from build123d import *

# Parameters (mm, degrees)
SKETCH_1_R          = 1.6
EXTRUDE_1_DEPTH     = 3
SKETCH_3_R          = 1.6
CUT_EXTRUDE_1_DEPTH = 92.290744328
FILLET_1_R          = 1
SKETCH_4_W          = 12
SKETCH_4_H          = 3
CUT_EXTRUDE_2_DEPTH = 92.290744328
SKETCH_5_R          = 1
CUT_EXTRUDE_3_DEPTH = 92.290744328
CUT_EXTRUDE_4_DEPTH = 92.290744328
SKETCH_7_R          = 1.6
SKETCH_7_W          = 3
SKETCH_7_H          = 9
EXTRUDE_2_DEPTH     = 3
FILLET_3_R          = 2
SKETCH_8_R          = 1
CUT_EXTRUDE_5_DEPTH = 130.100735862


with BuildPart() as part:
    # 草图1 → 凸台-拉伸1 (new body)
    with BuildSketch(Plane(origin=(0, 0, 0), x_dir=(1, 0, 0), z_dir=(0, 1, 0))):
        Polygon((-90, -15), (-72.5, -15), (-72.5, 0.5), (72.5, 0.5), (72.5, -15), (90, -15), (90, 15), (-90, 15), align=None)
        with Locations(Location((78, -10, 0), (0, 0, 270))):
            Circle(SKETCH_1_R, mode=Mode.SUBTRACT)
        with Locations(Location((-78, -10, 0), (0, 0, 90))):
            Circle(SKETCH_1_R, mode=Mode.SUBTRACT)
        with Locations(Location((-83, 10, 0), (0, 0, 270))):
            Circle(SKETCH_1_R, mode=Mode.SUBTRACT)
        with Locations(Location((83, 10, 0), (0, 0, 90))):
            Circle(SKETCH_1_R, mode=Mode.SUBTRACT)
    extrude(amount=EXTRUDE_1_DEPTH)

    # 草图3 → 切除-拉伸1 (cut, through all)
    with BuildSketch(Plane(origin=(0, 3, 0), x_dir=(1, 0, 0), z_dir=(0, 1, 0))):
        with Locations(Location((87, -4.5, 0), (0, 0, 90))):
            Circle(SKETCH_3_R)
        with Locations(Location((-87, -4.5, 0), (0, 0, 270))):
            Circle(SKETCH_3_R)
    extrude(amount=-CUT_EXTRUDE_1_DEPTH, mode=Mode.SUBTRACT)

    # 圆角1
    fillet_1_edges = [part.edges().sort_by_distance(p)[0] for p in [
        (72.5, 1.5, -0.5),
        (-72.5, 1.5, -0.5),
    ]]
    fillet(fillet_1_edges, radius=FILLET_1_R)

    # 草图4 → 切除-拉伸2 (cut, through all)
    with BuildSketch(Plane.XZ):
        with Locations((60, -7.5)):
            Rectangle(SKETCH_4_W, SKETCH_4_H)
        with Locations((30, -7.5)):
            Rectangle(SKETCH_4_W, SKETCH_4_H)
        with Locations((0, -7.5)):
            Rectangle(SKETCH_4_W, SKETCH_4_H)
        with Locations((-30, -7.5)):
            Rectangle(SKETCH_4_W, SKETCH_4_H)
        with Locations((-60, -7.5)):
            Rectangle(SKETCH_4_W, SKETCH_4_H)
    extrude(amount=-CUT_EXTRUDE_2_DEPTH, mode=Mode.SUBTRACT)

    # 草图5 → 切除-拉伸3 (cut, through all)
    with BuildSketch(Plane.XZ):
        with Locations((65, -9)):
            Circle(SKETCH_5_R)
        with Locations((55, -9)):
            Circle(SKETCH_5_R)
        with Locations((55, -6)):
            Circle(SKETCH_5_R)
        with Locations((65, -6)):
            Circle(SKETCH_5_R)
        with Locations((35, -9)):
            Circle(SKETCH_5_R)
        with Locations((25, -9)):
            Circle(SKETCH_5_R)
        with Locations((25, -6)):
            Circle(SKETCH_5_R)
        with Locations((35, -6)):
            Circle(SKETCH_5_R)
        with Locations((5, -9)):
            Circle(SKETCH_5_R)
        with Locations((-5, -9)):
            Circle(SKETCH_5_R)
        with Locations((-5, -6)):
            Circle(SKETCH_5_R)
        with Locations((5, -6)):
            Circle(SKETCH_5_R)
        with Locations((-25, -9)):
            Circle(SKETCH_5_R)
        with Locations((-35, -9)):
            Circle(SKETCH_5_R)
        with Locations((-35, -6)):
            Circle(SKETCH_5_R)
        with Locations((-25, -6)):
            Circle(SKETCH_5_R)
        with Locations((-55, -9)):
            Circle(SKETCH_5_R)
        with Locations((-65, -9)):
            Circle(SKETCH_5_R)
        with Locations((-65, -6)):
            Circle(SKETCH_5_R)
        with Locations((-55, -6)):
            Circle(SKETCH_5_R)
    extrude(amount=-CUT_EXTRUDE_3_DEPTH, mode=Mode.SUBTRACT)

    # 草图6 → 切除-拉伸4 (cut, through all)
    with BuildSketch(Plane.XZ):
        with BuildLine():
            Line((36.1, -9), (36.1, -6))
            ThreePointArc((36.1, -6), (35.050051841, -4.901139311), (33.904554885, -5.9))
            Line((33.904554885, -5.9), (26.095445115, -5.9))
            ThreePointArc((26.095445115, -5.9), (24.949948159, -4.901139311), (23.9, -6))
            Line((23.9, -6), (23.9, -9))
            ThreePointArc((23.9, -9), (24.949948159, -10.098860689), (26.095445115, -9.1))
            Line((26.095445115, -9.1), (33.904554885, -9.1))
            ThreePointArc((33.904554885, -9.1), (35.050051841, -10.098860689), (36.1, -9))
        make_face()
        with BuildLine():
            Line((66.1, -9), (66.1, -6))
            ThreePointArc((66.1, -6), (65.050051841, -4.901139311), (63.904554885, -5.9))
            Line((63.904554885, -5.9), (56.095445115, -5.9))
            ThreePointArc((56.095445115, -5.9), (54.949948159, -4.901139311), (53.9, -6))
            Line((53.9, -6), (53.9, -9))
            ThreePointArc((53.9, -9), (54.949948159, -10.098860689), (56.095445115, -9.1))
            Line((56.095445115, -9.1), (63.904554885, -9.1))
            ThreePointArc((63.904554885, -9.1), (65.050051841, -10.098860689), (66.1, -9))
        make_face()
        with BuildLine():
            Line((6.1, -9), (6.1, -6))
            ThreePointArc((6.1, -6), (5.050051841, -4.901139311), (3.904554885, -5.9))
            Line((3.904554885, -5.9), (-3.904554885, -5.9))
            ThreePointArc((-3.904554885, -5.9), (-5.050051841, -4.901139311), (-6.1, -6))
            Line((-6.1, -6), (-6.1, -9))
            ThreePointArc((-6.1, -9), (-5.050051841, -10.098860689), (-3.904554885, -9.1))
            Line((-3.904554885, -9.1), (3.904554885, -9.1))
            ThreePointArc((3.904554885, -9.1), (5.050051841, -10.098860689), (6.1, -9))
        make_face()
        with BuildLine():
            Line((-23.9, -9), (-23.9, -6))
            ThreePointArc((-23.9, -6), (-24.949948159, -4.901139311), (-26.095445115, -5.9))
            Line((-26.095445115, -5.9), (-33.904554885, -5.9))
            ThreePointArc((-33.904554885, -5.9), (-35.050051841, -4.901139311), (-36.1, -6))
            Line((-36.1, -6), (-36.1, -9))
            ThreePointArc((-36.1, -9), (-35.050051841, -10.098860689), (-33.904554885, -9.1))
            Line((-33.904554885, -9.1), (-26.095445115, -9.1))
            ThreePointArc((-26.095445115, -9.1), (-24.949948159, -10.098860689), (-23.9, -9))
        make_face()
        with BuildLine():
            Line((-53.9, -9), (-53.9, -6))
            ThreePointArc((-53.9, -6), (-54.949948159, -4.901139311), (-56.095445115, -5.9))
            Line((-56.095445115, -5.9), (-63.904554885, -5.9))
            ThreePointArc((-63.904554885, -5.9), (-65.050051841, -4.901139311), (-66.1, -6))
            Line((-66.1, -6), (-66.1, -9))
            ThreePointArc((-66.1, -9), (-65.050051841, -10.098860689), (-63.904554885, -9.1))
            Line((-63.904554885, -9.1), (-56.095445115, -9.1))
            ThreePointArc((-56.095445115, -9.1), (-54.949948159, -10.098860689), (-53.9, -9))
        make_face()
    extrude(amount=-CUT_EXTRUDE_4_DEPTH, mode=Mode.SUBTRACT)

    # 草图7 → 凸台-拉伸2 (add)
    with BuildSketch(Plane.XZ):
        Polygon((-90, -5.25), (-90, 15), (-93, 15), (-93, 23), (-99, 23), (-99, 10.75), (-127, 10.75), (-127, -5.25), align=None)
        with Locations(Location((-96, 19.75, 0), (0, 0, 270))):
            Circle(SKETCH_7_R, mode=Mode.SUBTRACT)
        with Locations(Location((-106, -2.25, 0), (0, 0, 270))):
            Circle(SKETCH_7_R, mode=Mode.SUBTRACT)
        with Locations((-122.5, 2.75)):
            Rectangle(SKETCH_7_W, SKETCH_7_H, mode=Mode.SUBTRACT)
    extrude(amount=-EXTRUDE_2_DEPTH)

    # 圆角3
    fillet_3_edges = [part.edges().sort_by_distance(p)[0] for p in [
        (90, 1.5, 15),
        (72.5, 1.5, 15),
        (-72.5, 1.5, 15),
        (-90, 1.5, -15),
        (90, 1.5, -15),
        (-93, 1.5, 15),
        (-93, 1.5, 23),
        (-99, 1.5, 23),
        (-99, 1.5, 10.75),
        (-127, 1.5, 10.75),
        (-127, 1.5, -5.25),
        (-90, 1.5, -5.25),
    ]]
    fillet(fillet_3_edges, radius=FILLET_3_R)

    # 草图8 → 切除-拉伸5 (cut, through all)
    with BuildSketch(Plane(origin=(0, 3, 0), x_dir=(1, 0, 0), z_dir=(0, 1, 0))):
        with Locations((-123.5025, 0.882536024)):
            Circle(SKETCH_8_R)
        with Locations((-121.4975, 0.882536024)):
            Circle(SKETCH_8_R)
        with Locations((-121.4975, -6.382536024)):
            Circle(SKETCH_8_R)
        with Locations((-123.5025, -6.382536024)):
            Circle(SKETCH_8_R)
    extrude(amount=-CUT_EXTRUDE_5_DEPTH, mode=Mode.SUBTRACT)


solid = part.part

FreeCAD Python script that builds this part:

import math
import FreeCAD as App
import Part
import Sketcher


def edges_at(feature, points):
    """Names of the edges that pass closest to the given points."""
    edges = feature.Shape.Edges
    near = lambda p: min(range(len(edges)), key=lambda i: edges[i].distToShape(Part.Vertex(*p))[0])
    return sorted({f"Edge{near(p) + 1}" for p in points})

doc = App.newDocument("Part")
params = doc.addObject("Spreadsheet::Sheet", "Params")
for row, (alias, value) in enumerate([
    ("sketch1_diameter", "3.2 mm"),
    ("sketch1_width", "145 mm"),
    ("sketch1_width2", "180 mm"),
    ("sketch1_height", "30 mm"),
    ("sketch1_height2", "15.5 mm"),
    ("pad1_length", "3 mm"),
    ("sketch2_diameter", "3.2 mm"),
    ("fillet_radius", "1 mm"),
    ("sketch3_width", "12 mm"),
    ("sketch3_height", "3 mm"),
    ("sketch4_diameter", "2 mm"),
    ("sketch5_radius", "1.1 mm"),
    ("sketch5_height", "3 mm"),
    ("sketch6_diameter", "3.2 mm"),
    ("sketch6_width", "3 mm"),
    ("sketch6_width2", "6 mm"),
    ("sketch6_width3", "28 mm"),
    ("sketch6_height", "8 mm"),
    ("pad2_length", "3 mm"),
    ("fillet2_radius", "2 mm"),
    ("sketch7_diameter", "2 mm"),
], start=1):
    params.set(f"A{row}", alias)
    params.set(f"B{row}", "=" + value)
    params.setAlias(f"B{row}", alias)

body = doc.addObject("PartDesign::Body", "Body")

# Sketch on XZ plane
sketch1 = doc.addObject("Sketcher::SketchObject", "Sketch")
body.addObject(sketch1)
sketch1.AttachmentSupport = (doc.XZ_Plane, [""])
sketch1.MapMode = "FlatFace"
sketch1.addGeometry(Part.LineSegment(App.Vector(-90, 15, 0), App.Vector(-72.5, 15, 0)), False)
sketch1.addGeometry(Part.LineSegment(App.Vector(-72.5, 15, 0), App.Vector(-72.5, -0.5, 0)), False)
sketch1.addGeometry(Part.LineSegment(App.Vector(-72.5, -0.5, 0), App.Vector(72.5, -0.5, 0)), False)
sketch1.addGeometry(Part.LineSegment(App.Vector(72.5, -0.5, 0), App.Vector(72.5, 15, 0)), False)
sketch1.addGeometry(Part.LineSegment(App.Vector(72.5, 15, 0), App.Vector(90, 15, 0)), False)
sketch1.addGeometry(Part.LineSegment(App.Vector(90, 15, 0), App.Vector(90, -15, 0)), False)
sketch1.addGeometry(Part.LineSegment(App.Vector(90, -15, 0), App.Vector(-90, -15, 0)), False)
sketch1.addGeometry(Part.LineSegment(App.Vector(-90, -15, 0), App.Vector(-90, 15, 0)), False)
sketch1.addGeometry(Part.Circle(App.Vector(-78, 10, 0), App.Vector(0, 0, 1), 1.6), False)
sketch1.addGeometry(Part.Circle(App.Vector(78, 10, 0), App.Vector(0, 0, 1), 1.6), False)
sketch1.addGeometry(Part.Circle(App.Vector(-83, -10, 0), App.Vector(0, 0, 1), 1.6), False)
sketch1.addGeometry(Part.Circle(App.Vector(83, -10, 0), App.Vector(0, 0, 1), 1.6), False)
sketch1.addConstraint(Sketcher.Constraint("Coincident", 0, 2, 1, 1))
sketch1.addConstraint(Sketcher.Constraint("Coincident", 1, 2, 2, 1))
sketch1.addConstraint(Sketcher.Constraint("Coincident", 2, 2, 3, 1))
sketch1.addConstraint(Sketcher.Constraint("Coincident", 3, 2, 4, 1))
sketch1.addConstraint(Sketcher.Constraint("Coincident", 4, 2, 5, 1))
sketch1.addConstraint(Sketcher.Constraint("Coincident", 5, 2, 6, 1))
sketch1.addConstraint(Sketcher.Constraint("Coincident", 6, 2, 7, 1))
sketch1.addConstraint(Sketcher.Constraint("Coincident", 7, 2, 0, 1))
sketch1.addConstraint(Sketcher.Constraint("Horizontal", 0))
sketch1.addConstraint(Sketcher.Constraint("Vertical", 1))
sketch1.addConstraint(Sketcher.Constraint("Horizontal", 2))
sketch1.addConstraint(Sketcher.Constraint("Vertical", 3))
sketch1.addConstraint(Sketcher.Constraint("Horizontal", 4))
sketch1.addConstraint(Sketcher.Constraint("Vertical", 5))
sketch1.addConstraint(Sketcher.Constraint("Horizontal", 6))
sketch1.addConstraint(Sketcher.Constraint("Vertical", 7))
sketch1.addConstraint(Sketcher.Constraint("Equal", 8, 9))
sketch1.addConstraint(Sketcher.Constraint("Equal", 9, 10))
sketch1.addConstraint(Sketcher.Constraint("Equal", 10, 11))
sketch1.addConstraint(Sketcher.Constraint("Symmetric", 4, 2, 6, 2, -1, 1))
sketch1.addConstraint(Sketcher.Constraint("Symmetric", 8, 3, 9, 3, -2))
sketch1.addConstraint(Sketcher.Constraint("Symmetric", 10, 3, 11, 3, -2))
sketch1.addConstraint(Sketcher.Constraint("Symmetric", 0, 2, 3, 2, -2))
sketch1.addConstraint(Sketcher.Constraint("Diameter", 8, 3.2))
sketch1.addConstraint(Sketcher.Constraint("DistanceX", 2, 1, 2, 2, 145.0))
sketch1.addConstraint(Sketcher.Constraint("DistanceX", 6, 2, 6, 1, 180.0))
sketch1.addConstraint(Sketcher.Constraint("DistanceY", 5, 2, 5, 1, 30.0))
sketch1.addConstraint(Sketcher.Constraint("DistanceY", 1, 2, 1, 1, 15.5))
sketch1.addConstraint(Sketcher.Constraint("DistanceX", 8, 3, -1, 1, 78.0))
sketch1.addConstraint(Sketcher.Constraint("DistanceY", -1, 1, 8, 3, 10.0))
sketch1.addConstraint(Sketcher.Constraint("DistanceX", 10, 3, -1, 1, 83.0))
sketch1.addConstraint(Sketcher.Constraint("DistanceY", 10, 3, -1, 1, 10.0))
sketch1.setExpression("Constraints[23]", "Params.sketch1_diameter")
sketch1.setExpression("Constraints[24]", "Params.sketch1_width")
sketch1.setExpression("Constraints[25]", "Params.sketch1_width2")
sketch1.setExpression("Constraints[26]", "Params.sketch1_height")
sketch1.setExpression("Constraints[27]", "Params.sketch1_height2")
pad1 = doc.addObject("PartDesign::Pad", "Pad")
body.addObject(pad1)
pad1.Profile = sketch1
pad1.setExpression("Length", "Params.pad1_length")
pad1.Reversed = True

# Sketch on XZ plane
sketch2 = doc.addObject("Sketcher::SketchObject", "Sketch001")
body.addObject(sketch2)
sketch2.AttachmentSupport = (doc.XZ_Plane, [""])
sketch2.MapMode = "FlatFace"
sketch2.AttachmentOffset = App.Placement(App.Vector(0, 0, -3), App.Rotation())
sketch2.addGeometry(Part.Circle(App.Vector(87, 4.5, 0), App.Vector(0, 0, 1), 1.6), False)
sketch2.addGeometry(Part.Circle(App.Vector(-87, 4.5, 0), App.Vector(0, 0, 1), 1.6), False)
sketch2.addConstraint(Sketcher.Constraint("Equal", 0, 1))
sketch2.addConstraint(Sketcher.Constraint("Symmetric", 0, 3, 1, 3, -2))
sketch2.addConstraint(Sketcher.Constraint("Diameter", 0, 3.2))
sketch2.addConstraint(Sketcher.Constraint("DistanceX", -1, 1, 0, 3, 87.0))
sketch2.addConstraint(Sketcher.Constraint("DistanceY", -1, 1, 0, 3, 4.5))
sketch2.setExpression("Constraints[2]", "Params.sketch2_diameter")
pocket1 = doc.addObject("PartDesign::Pocket", "Pocket")
body.addObject(pocket1)
pocket1.Profile = sketch2
pocket1.Type = "ThroughAll"
pocket1.Reversed = True
doc.recompute()

fillet = doc.addObject("PartDesign::Fillet", "Fillet")
body.addObject(fillet)
fillet.Base = (pocket1, edges_at(pocket1, [(72.5, 1.5, -0.5), (-72.5, 1.5, -0.5)]))
fillet.setExpression("Radius", "Params.fillet_radius")

# Sketch on XZ plane
sketch3 = doc.addObject("Sketcher::SketchObject", "Sketch002")
body.addObject(sketch3)
sketch3.AttachmentSupport = (doc.XZ_Plane, [""])
sketch3.MapMode = "FlatFace"
sketch3.addGeometry(Part.LineSegment(App.Vector(54, -6, 0), App.Vector(54, -9, 0)), False)
sketch3.addGeometry(Part.LineSegment(App.Vector(54, -9, 0), App.Vector(66, -9, 0)), False)
sketch3.addGeometry(Part.LineSegment(App.Vector(66, -9, 0), App.Vector(66, -6, 0)), False)
sketch3.addGeometry(Part.LineSegment(App.Vector(66, -6, 0), App.Vector(54, -6, 0)), False)
sketch3.addGeometry(Part.LineSegment(App.Vector(24, -6, 0), App.Vector(24, -9, 0)), False)
sketch3.addGeometry(Part.LineSegment(App.Vector(24, -9, 0), App.Vector(36, -9, 0)), False)
sketch3.addGeometry(Part.LineSegment(App.Vector(36, -9, 0), App.Vector(36, -6, 0)), False)
sketch3.addGeometry(Part.LineSegment(App.Vector(36, -6, 0), App.Vector(24, -6, 0)), False)
sketch3.addGeometry(Part.LineSegment(App.Vector(-6, -6, 0), App.Vector(-6, -9, 0)), False)
sketch3.addGeometry(Part.LineSegment(App.Vector(-6, -9, 0), App.Vector(6, -9, 0)), False)
sketch3.addGeometry(Part.LineSegment(App.Vector(6, -9, 0), App.Vector(6, -6, 0)), False)
sketch3.addGeometry(Part.LineSegment(App.Vector(6, -6, 0), App.Vector(-6, -6, 0)), False)
sketch3.addGeometry(Part.LineSegment(App.Vector(-36, -6, 0), App.Vector(-36, -9, 0)), False)
sketch3.addGeometry(Part.LineSegment(App.Vector(-36, -9, 0), App.Vector(-24, -9, 0)), False)
sketch3.addGeometry(Part.LineSegment(App.Vector(-24, -9, 0), App.Vector(-24, -6, 0)), False)
sketch3.addGeometry(Part.LineSegment(App.Vector(-24, -6, 0), App.Vector(-36, -6, 0)), False)
sketch3.addGeometry(Part.LineSegment(App.Vector(-66, -6, 0), App.Vector(-66, -9, 0)), False)
sketch3.addGeometry(Part.LineSegment(App.Vector(-66, -9, 0), App.Vector(-54, -9, 0)), False)
sketch3.addGeometry(Part.LineSegment(App.Vector(-54, -9, 0), App.Vector(-54, -6, 0)), False)
sketch3.addGeometry(Part.LineSegment(App.Vector(-54, -6, 0), App.Vector(-66, -6, 0)), False)
sketch3.addConstraint(Sketcher.Constraint("Coincident", 0, 2, 1, 1))
sketch3.addConstraint(Sketcher.Constraint("Coincident", 1, 2, 2, 1))
sketch3.addConstraint(Sketcher.Constraint("Coincident", 2, 2, 3, 1))
sketch3.addConstraint(Sketcher.Constraint("Coincident", 3, 2, 0, 1))
sketch3.addConstraint(Sketcher.Constraint("Coincident", 4, 2, 5, 1))
sketch3.addConstraint(Sketcher.Constraint("Coincident", 5, 2, 6, 1))
sketch3.addConstraint(Sketcher.Constraint("Coincident", 6, 2, 7, 1))
sketch3.addConstraint(Sketcher.Constraint("Coincident", 7, 2, 4, 1))
sketch3.addConstraint(Sketcher.Constraint("Coincident", 8, 2, 9, 1))
sketch3.addConstraint(Sketcher.Constraint("Coincident", 9, 2, 10, 1))
sketch3.addConstraint(Sketcher.Constraint("Coincident", 10, 2, 11, 1))
sketch3.addConstraint(Sketcher.Constraint("Coincident", 11, 2, 8, 1))
sketch3.addConstraint(Sketcher.Constraint("Coincident", 12, 2, 13, 1))
sketch3.addConstraint(Sketcher.Constraint("Coincident", 13, 2, 14, 1))
sketch3.addConstraint(Sketcher.Constraint("Coincident", 14, 2, 15, 1))
sketch3.addConstraint(Sketcher.Constraint("Coincident", 15, 2, 12, 1))
sketch3.addConstraint(Sketcher.Constraint("Coincident", 16, 2, 17, 1))
sketch3.addConstraint(Sketcher.Constraint("Coincident", 17, 2, 18, 1))
sketch3.addConstraint(Sketcher.Constraint("Coincident", 18, 2, 19, 1))
sketch3.addConstraint(Sketcher.Constraint("Coincident", 19, 2, 16, 1))
sketch3.addConstraint(Sketcher.Constraint("Vertical", 0))
sketch3.addConstraint(Sketcher.Constraint("Horizontal", 1))
sketch3.addConstraint(Sketcher.Constraint("Vertical", 2))
sketch3.addConstraint(Sketcher.Constraint("Horizontal", 3))
sketch3.addConstraint(Sketcher.Constraint("Vertical", 4))
sketch3.addConstraint(Sketcher.Constraint("Horizontal", 5))
sketch3.addConstraint(Sketcher.Constraint("Vertical", 6))
sketch3.addConstraint(Sketcher.Constraint("Horizontal", 7))
sketch3.addConstraint(Sketcher.Constraint("Vertical", 8))
sketch3.addConstraint(Sketcher.Constraint("Horizontal", 9))
sketch3.addConstraint(Sketcher.Constraint("Vertical", 10))
sketch3.addConstraint(Sketcher.Constraint("Horizontal", 11))
sketch3.addConstraint(Sketcher.Constraint("Vertical", 12))
sketch3.addConstraint(Sketcher.Constraint("Horizontal", 13))
sketch3.addConstraint(Sketcher.Constraint("Vertical", 14))
sketch3.addConstraint(Sketcher.Constraint("Horizontal", 15))
sketch3.addConstraint(Sketcher.Constraint("Vertical", 16))
sketch3.addConstraint(Sketcher.Constraint("Horizontal", 17))
sketch3.addConstraint(Sketcher.Constraint("Vertical", 18))
sketch3.addConstraint(Sketcher.Constraint("Horizontal", 19))
sketch3.addConstraint(Sketcher.Constraint("Symmetric", 5, 2, 12, 2, -2))
sketch3.addConstraint(Sketcher.Constraint("Symmetric", 7, 2, 14, 2, -2))
sketch3.addConstraint(Sketcher.Constraint("Symmetric", 1, 2, 16, 2, -2))
sketch3.addConstraint(Sketcher.Constraint("Symmetric", 3, 2, 18, 2, -2))
sketch3.addConstraint(Sketcher.Constraint("Horizontal", 1, 2, 4, 2))
sketch3.addConstraint(Sketcher.Constraint("Horizontal", 3, 2, 6, 2))
sketch3.addConstraint(Sketcher.Constraint("Horizontal", 5, 2, 8, 2))
sketch3.addConstraint(Sketcher.Constraint("Horizontal", 7, 2, 10, 2))
sketch3.addConstraint(Sketcher.Constraint("Equal", 3, 5))
sketch3.addConstraint(Sketcher.Constraint("Equal", 7, 9))
sketch3.addConstraint(Sketcher.Constraint("DistanceX", 1, 1, 1, 2, 12.0))
sketch3.addConstraint(Sketcher.Constraint("DistanceY", 0, 2, 0, 1, 3.0))
sketch3.addConstraint(Sketcher.Constraint("DistanceX", -1, 1, 0, 2, 54.0))
sketch3.addConstraint(Sketcher.Constraint("DistanceY", 0, 2, -1, 1, 9.0))
sketch3.addConstraint(Sketcher.Constraint("DistanceX", -1, 1, 4, 2, 24.0))
sketch3.addConstraint(Sketcher.Constraint("DistanceX", 8, 2, -1, 1, 6.0))
sketch3.setExpression("Constraints[50]", "Params.sketch3_width")
sketch3.setExpression("Constraints[51]", "Params.sketch3_height")
pocket2 = doc.addObject("PartDesign::Pocket", "Pocket001")
body.addObject(pocket2)
pocket2.Profile = sketch3
pocket2.Type = "ThroughAll"

# Sketch on XZ plane
sketch4 = doc.addObject("Sketcher::SketchObject", "Sketch003")
body.addObject(sketch4)
sketch4.AttachmentSupport = (doc.XZ_Plane, [""])
sketch4.MapMode = "FlatFace"
sketch4.addGeometry(Part.Circle(App.Vector(65, -9, 0), App.Vector(0, 0, 1), 1), False)
sketch4.addGeometry(Part.Circle(App.Vector(55, -9, 0), App.Vector(0, 0, 1), 1), False)
sketch4.addGeometry(Part.Circle(App.Vector(55, -6, 0), App.Vector(0, 0, 1), 1), False)
sketch4.addGeometry(Part.Circle(App.Vector(65, -6, 0), App.Vector(0, 0, 1), 1), False)
sketch4.addGeometry(Part.Circle(App.Vector(35, -9, 0), App.Vector(0, 0, 1), 1), False)
sketch4.addGeometry(Part.Circle(App.Vector(25, -9, 0), App.Vector(0, 0, 1), 1), False)
sketch4.addGeometry(Part.Circle(App.Vector(25, -6, 0), App.Vector(0, 0, 1), 1), False)
sketch4.addGeometry(Part.Circle(App.Vector(35, -6, 0), App.Vector(0, 0, 1), 1), False)
sketch4.addGeometry(Part.Circle(App.Vector(5, -9, 0), App.Vector(0, 0, 1), 1), False)
sketch4.addGeometry(Part.Circle(App.Vector(-5, -9, 0), App.Vector(0, 0, 1), 1), False)
sketch4.addGeometry(Part.Circle(App.Vector(-5, -6, 0), App.Vector(0, 0, 1), 1), False)
sketch4.addGeometry(Part.Circle(App.Vector(5, -6, 0), App.Vector(0, 0, 1), 1), False)
sketch4.addGeometry(Part.Circle(App.Vector(-25, -9, 0), App.Vector(0, 0, 1), 1), False)
sketch4.addGeometry(Part.Circle(App.Vector(-35, -9, 0), App.Vector(0, 0, 1), 1), False)
sketch4.addGeometry(Part.Circle(App.Vector(-35, -6, 0), App.Vector(0, 0, 1), 1), False)
sketch4.addGeometry(Part.Circle(App.Vector(-25, -6, 0), App.Vector(0, 0, 1), 1), False)
sketch4.addGeometry(Part.Circle(App.Vector(-55, -9, 0), App.Vector(0, 0, 1), 1), False)
sketch4.addGeometry(Part.Circle(App.Vector(-65, -9, 0), App.Vector(0, 0, 1), 1), False)
sketch4.addGeometry(Part.Circle(App.Vector(-65, -6, 0), App.Vector(0, 0, 1), 1), False)
sketch4.addGeometry(Part.Circle(App.Vector(-55, -6, 0), App.Vector(0, 0, 1), 1), False)
sketch4.addConstraint(Sketcher.Constraint("Equal", 0, 1))
sketch4.addConstraint(Sketcher.Constraint("Equal", 1, 2))
sketch4.addConstraint(Sketcher.Constraint("Equal", 2, 3))
sketch4.addConstraint(Sketcher.Constraint("Equal", 3, 4))
sketch4.addConstraint(Sketcher.Constraint("Equal", 4, 5))
sketch4.addConstraint(Sketcher.Constraint("Equal", 5, 6))
sketch4.addConstraint(Sketcher.Constraint("Equal", 6, 7))
sketch4.addConstraint(Sketcher.Constraint("Equal", 7, 8))
sketch4.addConstraint(Sketcher.Constraint("Equal", 8, 9))
sketch4.addConstraint(Sketcher.Constraint("Equal", 9, 10))
sketch4.addConstraint(Sketcher.Constraint("Equal", 10, 11))
sketch4.addConstraint(Sketcher.Constraint("Equal", 11, 12))
sketch4.addConstraint(Sketcher.Constraint("Equal", 12, 13))
sketch4.addConstraint(Sketcher.Constraint("Equal", 13, 14))
sketch4.addConstraint(Sketcher.Constraint("Equal", 14, 15))
sketch4.addConstraint(Sketcher.Constraint("Equal", 15, 16))
sketch4.addConstraint(Sketcher.Constraint("Equal", 16, 17))
sketch4.addConstraint(Sketcher.Constraint("Equal", 17, 18))
sketch4.addConstraint(Sketcher.Constraint("Equal", 18, 19))
sketch4.addConstraint(Sketcher.Constraint("Symmetric", 8, 3, 9, 3, -2))
sketch4.addConstraint(Sketcher.Constraint("Symmetric", 10, 3, 11, 3, -2))
sketch4.addConstraint(Sketcher.Constraint("Symmetric", 5, 3, 12, 3, -2))
sketch4.addConstraint(Sketcher.Constraint("Symmetric", 4, 3, 13, 3, -2))
sketch4.addConstraint(Sketcher.Constraint("Symmetric", 7, 3, 14, 3, -2))
sketch4.addConstraint(Sketcher.Constraint("Symmetric", 6, 3, 15, 3, -2))
sketch4.addConstraint(Sketcher.Constraint("Symmetric", 1, 3, 16, 3, -2))
sketch4.addConstraint(Sketcher.Constraint("Symmetric", 0, 3, 17, 3, -2))
sketch4.addConstraint(Sketcher.Constraint("Symmetric", 3, 3, 18, 3, -2))
sketch4.addConstraint(Sketcher.Constraint("Symmetric", 2, 3, 19, 3, -2))
sketch4.addConstraint(Sketcher.Constraint("Horizontal", 0, 3, 1, 3))
sketch4.addConstraint(Sketcher.Constraint("Horizontal", 2, 3, 3, 3))
sketch4.addConstraint(Sketcher.Constraint("Horizontal", 1, 3, 4, 3))
sketch4.addConstraint(Sketcher.Constraint("Horizontal", 4, 3, 5, 3))
sketch4.addConstraint(Sketcher.Constraint("Horizontal", 3, 3, 6, 3))
sketch4.addConstraint(Sketcher.Constraint("Horizontal", 6, 3, 7, 3))
sketch4.addConstraint(Sketcher.Constraint("Horizontal", 5, 3, 8, 3))
sketch4.addConstraint(Sketcher.Constraint("Horizontal", 7, 3, 10, 3))
sketch4.addConstraint(Sketcher.Constraint("Vertical", 1, 3, 2, 3))
sketch4.addConstraint(Sketcher.Constraint("Vertical", 0, 3, 3, 3))
sketch4.addConstraint(Sketcher.Constraint("Vertical", 5, 3, 6, 3))
sketch4.addConstraint(Sketcher.Constraint("Vertical", 4, 3, 7, 3))
sketch4.addConstraint(Sketcher.Constraint("Vertical", 9, 3, 10, 3))
sketch4.addConstraint(Sketcher.Constraint("Diameter", 0, 2.0))
sketch4.addConstraint(Sketcher.Constraint("DistanceX", -1, 1, 0, 3, 65.0))
sketch4.addConstraint(Sketcher.Constraint("DistanceY", 0, 3, -1, 1, 9.0))
sketch4.addConstraint(Sketcher.Constraint("DistanceX", -1, 1, 1, 3, 55.0))
sketch4.addConstraint(Sketcher.Constraint("DistanceY", 2, 3, -1, 1, 6.0))
sketch4.addConstraint(Sketcher.Constraint("DistanceX", -1, 1, 4, 3, 35.0))
sketch4.addConstraint(Sketcher.Constraint("DistanceX", -1, 1, 5, 3, 25.0))
sketch4.addConstraint(Sketcher.Constraint("DistanceX", -1, 1, 8, 3, 5.0))
sketch4.setExpression("Constraints[42]", "Params.sketch4_diameter")
pocket3 = doc.addObject("PartDesign::Pocket", "Pocket002")
body.addObject(pocket3)
pocket3.Profile = sketch4
pocket3.Type = "ThroughAll"

# Sketch on XZ plane
sketch5 = doc.addObject("Sketcher::SketchObject", "Sketch004")
body.addObject(sketch5)
sketch5.AttachmentSupport = (doc.XZ_Plane, [""])
sketch5.MapMode = "FlatFace"
sketch5.addGeometry(Part.LineSegment(App.Vector(36.1, -9, 0), App.Vector(36.1, -6, 0)), False)
sketch5.addGeometry(Part.ArcOfCircle(Part.Circle(App.Vector(35, -6, 0), App.Vector(0, 0, 1), 1.1), math.radians(0), math.radians(175)), False)
sketch5.addGeometry(Part.LineSegment(App.Vector(33.9, -5.9, 0), App.Vector(26.1, -5.9, 0)), False)
sketch5.addGeometry(Part.ArcOfCircle(Part.Circle(App.Vector(25, -6, 0), App.Vector(0, 0, 1), 1.1), math.radians(5), math.radians(180)), False)
sketch5.addGeometry(Part.LineSegment(App.Vector(23.9, -6, 0), App.Vector(23.9, -9, 0)), False)
sketch5.addGeometry(Part.ArcOfCircle(Part.Circle(App.Vector(25, -9, 0), App.Vector(0, 0, 1), 1.1), math.radians(180), math.radians(355)), False)
sketch5.addGeometry(Part.LineSegment(App.Vector(26.1, -9.1, 0), App.Vector(33.9, -9.1, 0)), False)
sketch5.addGeometry(Part.ArcOfCircle(Part.Circle(App.Vector(35, -9, 0), App.Vector(0, 0, 1), 1.1), math.radians(-175), math.radians(0)), False)
sketch5.addGeometry(Part.LineSegment(App.Vector(66.1, -9, 0), App.Vector(66.1, -6, 0)), False)
sketch5.addGeometry(Part.ArcOfCircle(Part.Circle(App.Vector(65, -6, 0), App.Vector(0, 0, 1), 1.1), math.radians(0), math.radians(175)), False)
sketch5.addGeometry(Part.LineSegment(App.Vector(63.9, -5.9, 0), App.Vector(56.1, -5.9, 0)), False)
sketch5.addGeometry(Part.ArcOfCircle(Part.Circle(App.Vector(55, -6, 0), App.Vector(0, 0, 1), 1.1), math.radians(5), math.radians(180)), False)
sketch5.addGeometry(Part.LineSegment(App.Vector(53.9, -6, 0), App.Vector(53.9, -9, 0)), False)
sketch5.addGeometry(Part.ArcOfCircle(Part.Circle(App.Vector(55, -9, 0), App.Vector(0, 0, 1), 1.1), math.radians(180), math.radians(355)), False)
sketch5.addGeometry(Part.LineSegment(App.Vector(56.1, -9.1, 0), App.Vector(63.9, -9.1, 0)), False)
sketch5.addGeometry(Part.ArcOfCircle(Part.Circle(App.Vector(65, -9, 0), App.Vector(0, 0, 1), 1.1), math.radians(-175), math.radians(0)), False)
sketch5.addGeometry(Part.LineSegment(App.Vector(6.1, -9, 0), App.Vector(6.1, -6, 0)), False)
sketch5.addGeometry(Part.ArcOfCircle(Part.Circle(App.Vector(5, -6, 0), App.Vector(0, 0, 1), 1.1), math.radians(0), math.radians(175)), False)
sketch5.addGeometry(Part.LineSegment(App.Vector(3.9, -5.9, 0), App.Vector(-3.9, -5.9, 0)), False)
sketch5.addGeometry(Part.ArcOfCircle(Part.Circle(App.Vector(-5, -6, 0), App.Vector(0, 0, 1), 1.1), math.radians(5), math.radians(180)), False)
sketch5.addGeometry(Part.LineSegment(App.Vector(-6.1, -6, 0), App.Vector(-6.1, -9, 0)), False)
sketch5.addGeometry(Part.ArcOfCircle(Part.Circle(App.Vector(-5, -9, 0), App.Vector(0, 0, 1), 1.1), math.radians(180), math.radians(355)), False)
sketch5.addGeometry(Part.LineSegment(App.Vector(-3.9, -9.1, 0), App.Vector(3.9, -9.1, 0)), False)
sketch5.addGeometry(Part.ArcOfCircle(Part.Circle(App.Vector(5, -9, 0), App.Vector(0, 0, 1), 1.1), math.radians(-175), math.radians(0)), False)
sketch5.addGeometry(Part.LineSegment(App.Vector(-23.9, -9, 0), App.Vector(-23.9, -6, 0)), False)
sketch5.addGeometry(Part.ArcOfCircle(Part.Circle(App.Vector(-25, -6, 0), App.Vector(0, 0, 1), 1.1), math.radians(0), math.radians(175)), False)
sketch5.addGeometry(Part.LineSegment(App.Vector(-26.1, -5.9, 0), App.Vector(-33.9, -5.9, 0)), False)
sketch5.addGeometry(Part.ArcOfCircle(Part.Circle(App.Vector(-35, -6, 0), App.Vector(0, 0, 1), 1.1), math.radians(5), math.radians(180)), False)
sketch5.addGeometry(Part.LineSegment(App.Vector(-36.1, -6, 0), App.Vector(-36.1, -9, 0)), False)
sketch5.addGeometry(Part.ArcOfCircle(Part.Circle(App.Vector(-35, -9, 0), App.Vector(0, 0, 1), 1.1), math.radians(180), math.radians(355)), False)
sketch5.addGeometry(Part.LineSegment(App.Vector(-33.9, -9.1, 0), App.Vector(-26.1, -9.1, 0)), False)
sketch5.addGeometry(Part.ArcOfCircle(Part.Circle(App.Vector(-25, -9, 0), App.Vector(0, 0, 1), 1.1), math.radians(-175), math.radians(0)), False)
sketch5.addGeometry(Part.LineSegment(App.Vector(-53.9, -9, 0), App.Vector(-53.9, -6, 0)), False)
sketch5.addGeometry(Part.ArcOfCircle(Part.Circle(App.Vector(-55, -6, 0), App.Vector(0, 0, 1), 1.1), math.radians(0), math.radians(175)), False)
sketch5.addGeometry(Part.LineSegment(App.Vector(-56.1, -5.9, 0), App.Vector(-63.9, -5.9, 0)), False)
sketch5.addGeometry(Part.ArcOfCircle(Part.Circle(App.Vector(-65, -6, 0), App.Vector(0, 0, 1), 1.1), math.radians(5), math.radians(180)), False)
sketch5.addGeometry(Part.LineSegment(App.Vector(-66.1, -6, 0), App.Vector(-66.1, -9, 0)), False)
sketch5.addGeometry(Part.ArcOfCircle(Part.Circle(App.Vector(-65, -9, 0), App.Vector(0, 0, 1), 1.1), math.radians(180), math.radians(355)), False)
sketch5.addGeometry(Part.LineSegment(App.Vector(-63.9, -9.1, 0), App.Vector(-56.1, -9.1, 0)), False)
sketch5.addGeometry(Part.ArcOfCircle(Part.Circle(App.Vector(-55, -9, 0), App.Vector(0, 0, 1), 1.1), math.radians(-175), math.radians(0)), False)
sketch5.addConstraint(Sketcher.Constraint("Tangent", 0, 2, 1, 1))
sketch5.addConstraint(Sketcher.Constraint("Coincident", 1, 2, 2, 1))
sketch5.addConstraint(Sketcher.Constraint("Coincident", 2, 2, 3, 1))
sketch5.addConstraint(Sketcher.Constraint("Tangent", 3, 2, 4, 1))
sketch5.addConstraint(Sketcher.Constraint("Tangent", 4, 2, 5, 1))
sketch5.addConstraint(Sketcher.Constraint("Coincident", 5, 2, 6, 1))
sketch5.addConstraint(Sketcher.Constraint("Coincident", 6, 2, 7, 1))
sketch5.addConstraint(Sketcher.Constraint("Tangent", 7, 2, 0, 1))
sketch5.addConstraint(Sketcher.Constraint("Tangent", 8, 2, 9, 1))
sketch5.addConstraint(Sketcher.Constraint("Coincident", 9, 2, 10, 1))
sketch5.addConstraint(Sketcher.Constraint("Coincident", 10, 2, 11, 1))
sketch5.addConstraint(Sketcher.Constraint("Tangent", 11, 2, 12, 1))
sketch5.addConstraint(Sketcher.Constraint("Tangent", 12, 2, 13, 1))
sketch5.addConstraint(Sketcher.Constraint("Coincident", 13, 2, 14, 1))
sketch5.addConstraint(Sketcher.Constraint("Coincident", 14, 2, 15, 1))
sketch5.addConstraint(Sketcher.Constraint("Tangent", 15, 2, 8, 1))
sketch5.addConstraint(Sketcher.Constraint("Tangent", 16, 2, 17, 1))
sketch5.addConstraint(Sketcher.Constraint("Coincident", 17, 2, 18, 1))
sketch5.addConstraint(Sketcher.Constraint("Coincident", 18, 2, 19, 1))
sketch5.addConstraint(Sketcher.Constraint("Tangent", 19, 2, 20, 1))
sketch5.addConstraint(Sketcher.Constraint("Tangent", 20, 2, 21, 1))
sketch5.addConstraint(Sketcher.Constraint("Coincident", 21, 2, 22, 1))
sketch5.addConstraint(Sketcher.Constraint("Coincident", 22, 2, 23, 1))
sketch5.addConstraint(Sketcher.Constraint("Tangent", 23, 2, 16, 1))
sketch5.addConstraint(Sketcher.Constraint("Tangent", 24, 2, 25, 1))
sketch5.addConstraint(Sketcher.Constraint("Coincident", 25, 2, 26, 1))
sketch5.addConstraint(Sketcher.Constraint("Coincident", 26, 2, 27, 1))
sketch5.addConstraint(Sketcher.Constraint("Tangent", 27, 2, 28, 1))
sketch5.addConstraint(Sketcher.Constraint("Tangent", 28, 2, 29, 1))
sketch5.addConstraint(Sketcher.Constraint("Coincident", 29, 2, 30, 1))
sketch5.addConstraint(Sketcher.Constraint("Coincident", 30, 2, 31, 1))
sketch5.addConstraint(Sketcher.Constraint("Tangent", 31, 2, 24, 1))
sketch5.addConstraint(Sketcher.Constraint("Tangent", 32, 2, 33, 1))
sketch5.addConstraint(Sketcher.Constraint("Coincident", 33, 2, 34, 1))
sketch5.addConstraint(Sketcher.Constraint("Coincident", 34, 2, 35, 1))
sketch5.addConstraint(Sketcher.Constraint("Tangent", 35, 2, 36, 1))
sketch5.addConstraint(Sketcher.Constraint("Tangent", 36, 2, 37, 1))
sketch5.addConstraint(Sketcher.Constraint("Coincident", 37, 2, 38, 1))
sketch5.addConstraint(Sketcher.Constraint("Coincident", 38, 2, 39, 1))
sketch5.addConstraint(Sketcher.Constraint("Tangent", 39, 2, 32, 1))
sketch5.addConstraint(Sketcher.Constraint("Vertical", 0))
sketch5.addConstraint(Sketcher.Constraint("Horizontal", 2))
sketch5.addConstraint(Sketcher.Constraint("Vertical", 4))
sketch5.addConstraint(Sketcher.Constraint("Horizontal", 6))
sketch5.addConstraint(Sketcher.Constraint("Vertical", 8))
sketch5.addConstraint(Sketcher.Constraint("Horizontal", 10))
sketch5.addConstraint(Sketcher.Constraint("Vertical", 12))
sketch5.addConstraint(Sketcher.Constraint("Horizontal", 14))
sketch5.addConstraint(Sketcher.Constraint("Vertical", 16))
sketch5.addConstraint(Sketcher.Constraint("Horizontal", 18))
sketch5.addConstraint(Sketcher.Constraint("Vertical", 20))
sketch5.addConstraint(Sketcher.Constraint("Horizontal", 22))
sketch5.addConstraint(Sketcher.Constraint("Vertical", 24))
sketch5.addConstraint(Sketcher.Constraint("Horizontal", 26))
sketch5.addConstraint(Sketcher.Constraint("Vertical", 28))
sketch5.addConstraint(Sketcher.Constraint("Horizontal", 30))
sketch5.addConstraint(Sketcher.Constraint("Vertical", 32))
sketch5.addConstraint(Sketcher.Constraint("Horizontal", 34))
sketch5.addConstraint(Sketcher.Constraint("Vertical", 36))
sketch5.addConstraint(Sketcher.Constraint("Horizontal", 38))
sketch5.addConstraint(Sketcher.Constraint("Equal", 1, 3))
sketch5.addConstraint(Sketcher.Constraint("Equal", 3, 5))
sketch5.addConstraint(Sketcher.Constraint("Equal", 5, 7))
sketch5.addConstraint(Sketcher.Constraint("Equal", 7, 9))
sketch5.addConstraint(Sketcher.Constraint("Equal", 9, 11))
sketch5.addConstraint(Sketcher.Constraint("Equal", 11, 13))
sketch5.addConstraint(Sketcher.Constraint("Equal", 13, 15))
sketch5.addConstraint(Sketcher.Constraint("Equal", 15, 17))
sketch5.addConstraint(Sketcher.Constraint("Equal", 17, 19))
sketch5.addConstraint(Sketcher.Constraint("Equal", 19, 21))
sketch5.addConstraint(Sketcher.Constraint("Equal", 21, 23))
sketch5.addConstraint(Sketcher.Constraint("Equal", 23, 25))
sketch5.addConstraint(Sketcher.Constraint("Equal", 25, 27))
sketch5.addConstraint(Sketcher.Constraint("Equal", 27, 29))
sketch5.addConstraint(Sketcher.Constraint("Equal", 29, 31))
sketch5.addConstraint(Sketcher.Constraint("Equal", 31, 33))
sketch5.addConstraint(Sketcher.Constraint("Equal", 33, 35))
sketch5.addConstraint(Sketcher.Constraint("Equal", 35, 37))
sketch5.addConstraint(Sketcher.Constraint("Equal", 37, 39))
sketch5.addConstraint(Sketcher.Constraint("Symmetric", 17, 3, 19, 3, -2))
sketch5.addConstraint(Sketcher.Constraint("Symmetric", 3, 3, 25, 3, -2))
sketch5.addConstraint(Sketcher.Constraint("Symmetric", 1, 3, 27, 3, -2))
sketch5.addConstraint(Sketcher.Constraint("Symmetric", 11, 3, 33, 3, -2))
sketch5.addConstraint(Sketcher.Constraint("Symmetric", 9, 3, 35, 3, -2))
sketch5.addConstraint(Sketcher.Constraint("Symmetric", 6, 2, 29, 2, -2))
sketch5.addConstraint(Sketcher.Constraint("Symmetric", 14, 2, 37, 2, -2))
sketch5.addConstraint(Sketcher.Constraint("Horizontal", 1, 3, 3, 3))
sketch5.addConstraint(Sketcher.Constraint("Horizontal", 5, 3, 7, 3))
sketch5.addConstraint(Sketcher.Constraint("Horizontal", 3, 3, 9, 3))
sketch5.addConstraint(Sketcher.Constraint("Horizontal", 9, 3, 11, 3))
sketch5.addConstraint(Sketcher.Constraint("Horizontal", 7, 3, 13, 3))
sketch5.addConstraint(Sketcher.Constraint("Horizontal", 13, 3, 15, 3))
sketch5.addConstraint(Sketcher.Constraint("Horizontal", 11, 3, 17, 3))
sketch5.addConstraint(Sketcher.Constraint("Horizontal", 15, 3, 21, 3))
sketch5.addConstraint(Sketcher.Constraint("Horizontal", 21, 3, 23, 3))
sketch5.addConstraint(Sketcher.Constraint("Horizontal", 29, 3, 31, 3))
sketch5.addConstraint(Sketcher.Constraint("Horizontal", 37, 3, 39, 3))
sketch5.addConstraint(Sketcher.Constraint("Horizontal", 2, 2, 9, 2))
sketch5.addConstraint(Sketcher.Constraint("Horizontal", 6, 2, 13, 2))
sketch5.addConstraint(Sketcher.Constraint("Horizontal", 10, 2, 17, 2))
sketch5.addConstraint(Sketcher.Constraint("Horizontal", 14, 2, 21, 2))
sketch5.addConstraint(Sketcher.Constraint("Horizontal", 18, 2, 25, 2))
sketch5.addConstraint(Sketcher.Constraint("Horizontal", 26, 2, 33, 2))
sketch5.addConstraint(Sketcher.Constraint("Vertical", 2, 2, 5, 2))
sketch5.addConstraint(Sketcher.Constraint("Equal", 6, 10))
sketch5.addConstraint(Sketcher.Constraint("Equal", 14, 18))
sketch5.addConstraint(Sketcher.Constraint("Radius", 1, 1.1))
sketch5.addConstraint(Sketcher.Constraint("DistanceY", 0, 1, 0, 2, 3.0))
sketch5.addConstraint(Sketcher.Constraint("DistanceX", -1, 1, 1, 3, 35.0))
sketch5.addConstraint(Sketcher.Constraint("DistanceY", 1, 3, -1, 1, 6.0))
sketch5.addConstraint(Sketcher.Constraint("DistanceX", -1, 1, 3, 3, 25.0))
sketch5.addConstraint(Sketcher.Constraint("DistanceX", -1, 1, 9, 3, 65.0))
sketch5.addConstraint(Sketcher.Constraint("DistanceY", 1, 2, -1, 1, 5.9))
sketch5.setExpression("Constraints[106]", "Params.sketch5_radius")
sketch5.setExpression("Constraints[107]", "Params.sketch5_height")
pocket4 = doc.addObject("PartDesign::Pocket", "Pocket003")
body.addObject(pocket4)
pocket4.Profile = sketch5
pocket4.Type = "ThroughAll"

# Sketch on XZ plane
sketch6 = doc.addObject("Sketcher::SketchObject", "Sketch005")
body.addObject(sketch6)
sketch6.AttachmentSupport = (doc.XZ_Plane, [""])
sketch6.MapMode = "FlatFace"
sketch6.addGeometry(Part.LineSegment(App.Vector(-90, -5.2, 0), App.Vector(-90, 15, 0)), False)
sketch6.addGeometry(Part.LineSegment(App.Vector(-90, 15, 0), App.Vector(-93, 15, 0)), False)
sketch6.addGeometry(Part.LineSegment(App.Vector(-93, 15, 0), App.Vector(-93, 23, 0)), False)
sketch6.addGeometry(Part.LineSegment(App.Vector(-93, 23, 0), App.Vector(-99, 23, 0)), False)
sketch6.addGeometry(Part.LineSegment(App.Vector(-99, 23, 0), App.Vector(-99, 10.8, 0)), False)
sketch6.addGeometry(Part.LineSegment(App.Vector(-99, 10.8, 0), App.Vector(-127, 10.8, 0)), False)
sketch6.addGeometry(Part.LineSegment(App.Vector(-127, 10.8, 0), App.Vector(-127, -5.2, 0)), False)
sketch6.addGeometry(Part.LineSegment(App.Vector(-127, -5.2, 0), App.Vector(-90, -5.2, 0)), False)
sketch6.addGeometry(Part.LineSegment(App.Vector(-121, -1.8, 0), App.Vector(-124, -1.8, 0)), False)
sketch6.addGeometry(Part.LineSegment(App.Vector(-124, -1.8, 0), App.Vector(-124, 7.2, 0)), False)
sketch6.addGeometry(Part.LineSegment(App.Vector(-124, 7.2, 0), App.Vector(-121, 7.2, 0)), False)
sketch6.addGeometry(Part.LineSegment(App.Vector(-121, 7.2, 0), App.Vector(-121, -1.8, 0)), False)
sketch6.addGeometry(Part.Circle(App.Vector(-106, -2.2, 0), App.Vector(0, 0, 1), 1.6), False)
sketch6.addGeometry(Part.Circle(App.Vector(-96, 19.8, 0), App.Vector(0, 0, 1), 1.6), False)
sketch6.addConstraint(Sketcher.Constraint("Coincident", 0, 2, 1, 1))
sketch6.addConstraint(Sketcher.Constraint("Coincident", 1, 2, 2, 1))
sketch6.addConstraint(Sketcher.Constraint("Coincident", 2, 2, 3, 1))
sketch6.addConstraint(Sketcher.Constraint("Coincident", 3, 2, 4, 1))
sketch6.addConstraint(Sketcher.Constraint("Coincident", 4, 2, 5, 1))
sketch6.addConstraint(Sketcher.Constraint("Coincident", 5, 2, 6, 1))
sketch6.addConstraint(Sketcher.Constraint("Coincident", 6, 2, 7, 1))
sketch6.addConstraint(Sketcher.Constraint("Coincident", 7, 2, 0, 1))
sketch6.addConstraint(Sketcher.Constraint("Coincident", 8, 2, 9, 1))
sketch6.addConstraint(Sketcher.Constraint("Coincident", 9, 2, 10, 1))
sketch6.addConstraint(Sketcher.Constraint("Coincident", 10, 2, 11, 1))
sketch6.addConstraint(Sketcher.Constraint("Coincident", 11, 2, 8, 1))
sketch6.addConstraint(Sketcher.Constraint("Vertical", 0))
sketch6.addConstraint(Sketcher.Constraint("Horizontal", 1))
sketch6.addConstraint(Sketcher.Constraint("Vertical", 2))
sketch6.addConstraint(Sketcher.Constraint("Horizontal", 3))
sketch6.addConstraint(Sketcher.Constraint("Vertical", 4))
sketch6.addConstraint(Sketcher.Constraint("Horizontal", 5))
sketch6.addConstraint(Sketcher.Constraint("Vertical", 6))
sketch6.addConstraint(Sketcher.Constraint("Horizontal", 7))
sketch6.addConstraint(Sketcher.Constraint("Horizontal", 8))
sketch6.addConstraint(Sketcher.Constraint("Vertical", 9))
sketch6.addConstraint(Sketcher.Constraint("Horizontal", 10))
sketch6.addConstraint(Sketcher.Constraint("Vertical", 11))
sketch6.addConstraint(Sketcher.Constraint("Equal", 12, 13))
sketch6.addConstraint(Sketcher.Constraint("Equal", 1, 8))
sketch6.addConstraint(Sketcher.Constraint("Diameter", 12, 3.2))
sketch6.addConstraint(Sketcher.Constraint("DistanceX", 1, 2, 1, 1, 3.0))
sketch6.addConstraint(Sketcher.Constraint("DistanceX", 3, 2, 3, 1, 6.0))
sketch6.addConstraint(Sketcher.Constraint("DistanceX", 5, 2, 5, 1, 28.0))
sketch6.addConstraint(Sketcher.Constraint("DistanceY", 2, 1, 2, 2, 8.0))
sketch6.addConstraint(Sketcher.Constraint("DistanceY", 6, 2, 6, 1, 16.0))
sketch6.addConstraint(Sketcher.Constraint("DistanceY", 9, 1, 9, 2, 9.0))
sketch6.addConstraint(Sketcher.Constraint("DistanceX", 12, 3, -1, 1, 106.0))
sketch6.addConstraint(Sketcher.Constraint("DistanceX", 13, 3, -1, 1, 96.0))
sketch6.addConstraint(Sketcher.Constraint("DistanceX", 0, 2, -1, 1, 90.0))
sketch6.addConstraint(Sketcher.Constraint("DistanceY", -1, 1, 0, 2, 15.0))
sketch6.addConstraint(Sketcher.Constraint("DistanceX", 8, 2, -1, 1, 124.0))
sketch6.addConstraint(Sketcher.Constraint("DistanceY", 12, 3, 13, 3, 22.0))
sketch6.addConstraint(Sketcher.Constraint("DistanceY", 4, 2, 13, 3, 9.0))
sketch6.addConstraint(Sketcher.Constraint("DistanceY", 0, 1, 0, 2, 20.25))
sketch6.addConstraint(Sketcher.Constraint("DistanceY", 6, 2, 8, 2, 3.5))
sketch6.setExpression("Constraints[26]", "Params.sketch6_diameter")
sketch6.setExpression("Constraints[27]", "Params.sketch6_width")
sketch6.setExpression("Constraints[28]", "Params.sketch6_width2")
sketch6.setExpression("Constraints[29]", "Params.sketch6_width3")
sketch6.setExpression("Constraints[30]", "Params.sketch6_height")
pad2 = doc.addObject("PartDesign::Pad", "Pad001")
body.addObject(pad2)
pad2.Profile = sketch6
pad2.setExpression("Length", "Params.pad2_length")
pad2.Reversed = True
doc.recompute()

fillet2 = doc.addObject("PartDesign::Fillet", "Fillet001")
body.addObject(fillet2)
fillet2.Base = (pad2, edges_at(pad2, [
    (90, 1.5, 15),
    (72.5, 1.5, 15),
    (-72.5, 1.5, 15),
    (-90, 1.5, -15),
    (90, 1.5, -15),
    (-93, 1.5, 15),
    (-93, 1.5, 23),
    (-99, 1.5, 23),
    (-99, 1.5, 10.75),
    (-127, 1.5, 10.75),
    (-127, 1.5, -5.25),
    (-90, 1.5, -5.25),
]))
fillet2.setExpression("Radius", "Params.fillet2_radius")

# Sketch on XZ plane
sketch7 = doc.addObject("Sketcher::SketchObject", "Sketch006")
body.addObject(sketch7)
sketch7.AttachmentSupport = (doc.XZ_Plane, [""])
sketch7.MapMode = "FlatFace"
sketch7.AttachmentOffset = App.Placement(App.Vector(0, 0, -3), App.Rotation())
sketch7.addGeometry(Part.Circle(App.Vector(-123.5, -0.9, 0), App.Vector(0, 0, 1), 1), False)
sketch7.addGeometry(Part.Circle(App.Vector(-121.5, -0.9, 0), App.Vector(0, 0, 1), 1), False)
sketch7.addGeometry(Part.Circle(App.Vector(-121.5, 6.4, 0), App.Vector(0, 0, 1), 1), False)
sketch7.addGeometry(Part.Circle(App.Vector(-123.5, 6.4, 0), App.Vector(0, 0, 1), 1), False)
sketch7.addConstraint(Sketcher.Constraint("Equal", 0, 1))
sketch7.addConstraint(Sketcher.Constraint("Equal", 1, 2))
sketch7.addConstraint(Sketcher.Constraint("Equal", 2, 3))
sketch7.addConstraint(Sketcher.Constraint("Horizontal", 0, 3, 1, 3))
sketch7.addConstraint(Sketcher.Constraint("Horizontal", 2, 3, 3, 3))
sketch7.addConstraint(Sketcher.Constraint("Vertical", 1, 3, 2, 3))
sketch7.addConstraint(Sketcher.Constraint("Vertical", 0, 3, 3, 3))
sketch7.addConstraint(Sketcher.Constraint("Diameter", 0, 2.0))
sketch7.addConstraint(Sketcher.Constraint("DistanceX", 0, 3, 1, 3, 2.005))
sketch7.addConstraint(Sketcher.Constraint("DistanceX", 0, 3, -1, 1, 123.5025))
sketch7.addConstraint(Sketcher.Constraint("DistanceY", 0, 3, -1, 1, 0.882536))
sketch7.addConstraint(Sketcher.Constraint("DistanceY", -1, 1, 2, 3, 6.382536))
sketch7.setExpression("Constraints[7]", "Params.sketch7_diameter")
pocket5 = doc.addObject("PartDesign::Pocket", "Pocket004")
body.addObject(pocket5)
pocket5.Profile = sketch7
pocket5.Type = "ThroughAll"
pocket5.Reversed = True

doc.recompute()
